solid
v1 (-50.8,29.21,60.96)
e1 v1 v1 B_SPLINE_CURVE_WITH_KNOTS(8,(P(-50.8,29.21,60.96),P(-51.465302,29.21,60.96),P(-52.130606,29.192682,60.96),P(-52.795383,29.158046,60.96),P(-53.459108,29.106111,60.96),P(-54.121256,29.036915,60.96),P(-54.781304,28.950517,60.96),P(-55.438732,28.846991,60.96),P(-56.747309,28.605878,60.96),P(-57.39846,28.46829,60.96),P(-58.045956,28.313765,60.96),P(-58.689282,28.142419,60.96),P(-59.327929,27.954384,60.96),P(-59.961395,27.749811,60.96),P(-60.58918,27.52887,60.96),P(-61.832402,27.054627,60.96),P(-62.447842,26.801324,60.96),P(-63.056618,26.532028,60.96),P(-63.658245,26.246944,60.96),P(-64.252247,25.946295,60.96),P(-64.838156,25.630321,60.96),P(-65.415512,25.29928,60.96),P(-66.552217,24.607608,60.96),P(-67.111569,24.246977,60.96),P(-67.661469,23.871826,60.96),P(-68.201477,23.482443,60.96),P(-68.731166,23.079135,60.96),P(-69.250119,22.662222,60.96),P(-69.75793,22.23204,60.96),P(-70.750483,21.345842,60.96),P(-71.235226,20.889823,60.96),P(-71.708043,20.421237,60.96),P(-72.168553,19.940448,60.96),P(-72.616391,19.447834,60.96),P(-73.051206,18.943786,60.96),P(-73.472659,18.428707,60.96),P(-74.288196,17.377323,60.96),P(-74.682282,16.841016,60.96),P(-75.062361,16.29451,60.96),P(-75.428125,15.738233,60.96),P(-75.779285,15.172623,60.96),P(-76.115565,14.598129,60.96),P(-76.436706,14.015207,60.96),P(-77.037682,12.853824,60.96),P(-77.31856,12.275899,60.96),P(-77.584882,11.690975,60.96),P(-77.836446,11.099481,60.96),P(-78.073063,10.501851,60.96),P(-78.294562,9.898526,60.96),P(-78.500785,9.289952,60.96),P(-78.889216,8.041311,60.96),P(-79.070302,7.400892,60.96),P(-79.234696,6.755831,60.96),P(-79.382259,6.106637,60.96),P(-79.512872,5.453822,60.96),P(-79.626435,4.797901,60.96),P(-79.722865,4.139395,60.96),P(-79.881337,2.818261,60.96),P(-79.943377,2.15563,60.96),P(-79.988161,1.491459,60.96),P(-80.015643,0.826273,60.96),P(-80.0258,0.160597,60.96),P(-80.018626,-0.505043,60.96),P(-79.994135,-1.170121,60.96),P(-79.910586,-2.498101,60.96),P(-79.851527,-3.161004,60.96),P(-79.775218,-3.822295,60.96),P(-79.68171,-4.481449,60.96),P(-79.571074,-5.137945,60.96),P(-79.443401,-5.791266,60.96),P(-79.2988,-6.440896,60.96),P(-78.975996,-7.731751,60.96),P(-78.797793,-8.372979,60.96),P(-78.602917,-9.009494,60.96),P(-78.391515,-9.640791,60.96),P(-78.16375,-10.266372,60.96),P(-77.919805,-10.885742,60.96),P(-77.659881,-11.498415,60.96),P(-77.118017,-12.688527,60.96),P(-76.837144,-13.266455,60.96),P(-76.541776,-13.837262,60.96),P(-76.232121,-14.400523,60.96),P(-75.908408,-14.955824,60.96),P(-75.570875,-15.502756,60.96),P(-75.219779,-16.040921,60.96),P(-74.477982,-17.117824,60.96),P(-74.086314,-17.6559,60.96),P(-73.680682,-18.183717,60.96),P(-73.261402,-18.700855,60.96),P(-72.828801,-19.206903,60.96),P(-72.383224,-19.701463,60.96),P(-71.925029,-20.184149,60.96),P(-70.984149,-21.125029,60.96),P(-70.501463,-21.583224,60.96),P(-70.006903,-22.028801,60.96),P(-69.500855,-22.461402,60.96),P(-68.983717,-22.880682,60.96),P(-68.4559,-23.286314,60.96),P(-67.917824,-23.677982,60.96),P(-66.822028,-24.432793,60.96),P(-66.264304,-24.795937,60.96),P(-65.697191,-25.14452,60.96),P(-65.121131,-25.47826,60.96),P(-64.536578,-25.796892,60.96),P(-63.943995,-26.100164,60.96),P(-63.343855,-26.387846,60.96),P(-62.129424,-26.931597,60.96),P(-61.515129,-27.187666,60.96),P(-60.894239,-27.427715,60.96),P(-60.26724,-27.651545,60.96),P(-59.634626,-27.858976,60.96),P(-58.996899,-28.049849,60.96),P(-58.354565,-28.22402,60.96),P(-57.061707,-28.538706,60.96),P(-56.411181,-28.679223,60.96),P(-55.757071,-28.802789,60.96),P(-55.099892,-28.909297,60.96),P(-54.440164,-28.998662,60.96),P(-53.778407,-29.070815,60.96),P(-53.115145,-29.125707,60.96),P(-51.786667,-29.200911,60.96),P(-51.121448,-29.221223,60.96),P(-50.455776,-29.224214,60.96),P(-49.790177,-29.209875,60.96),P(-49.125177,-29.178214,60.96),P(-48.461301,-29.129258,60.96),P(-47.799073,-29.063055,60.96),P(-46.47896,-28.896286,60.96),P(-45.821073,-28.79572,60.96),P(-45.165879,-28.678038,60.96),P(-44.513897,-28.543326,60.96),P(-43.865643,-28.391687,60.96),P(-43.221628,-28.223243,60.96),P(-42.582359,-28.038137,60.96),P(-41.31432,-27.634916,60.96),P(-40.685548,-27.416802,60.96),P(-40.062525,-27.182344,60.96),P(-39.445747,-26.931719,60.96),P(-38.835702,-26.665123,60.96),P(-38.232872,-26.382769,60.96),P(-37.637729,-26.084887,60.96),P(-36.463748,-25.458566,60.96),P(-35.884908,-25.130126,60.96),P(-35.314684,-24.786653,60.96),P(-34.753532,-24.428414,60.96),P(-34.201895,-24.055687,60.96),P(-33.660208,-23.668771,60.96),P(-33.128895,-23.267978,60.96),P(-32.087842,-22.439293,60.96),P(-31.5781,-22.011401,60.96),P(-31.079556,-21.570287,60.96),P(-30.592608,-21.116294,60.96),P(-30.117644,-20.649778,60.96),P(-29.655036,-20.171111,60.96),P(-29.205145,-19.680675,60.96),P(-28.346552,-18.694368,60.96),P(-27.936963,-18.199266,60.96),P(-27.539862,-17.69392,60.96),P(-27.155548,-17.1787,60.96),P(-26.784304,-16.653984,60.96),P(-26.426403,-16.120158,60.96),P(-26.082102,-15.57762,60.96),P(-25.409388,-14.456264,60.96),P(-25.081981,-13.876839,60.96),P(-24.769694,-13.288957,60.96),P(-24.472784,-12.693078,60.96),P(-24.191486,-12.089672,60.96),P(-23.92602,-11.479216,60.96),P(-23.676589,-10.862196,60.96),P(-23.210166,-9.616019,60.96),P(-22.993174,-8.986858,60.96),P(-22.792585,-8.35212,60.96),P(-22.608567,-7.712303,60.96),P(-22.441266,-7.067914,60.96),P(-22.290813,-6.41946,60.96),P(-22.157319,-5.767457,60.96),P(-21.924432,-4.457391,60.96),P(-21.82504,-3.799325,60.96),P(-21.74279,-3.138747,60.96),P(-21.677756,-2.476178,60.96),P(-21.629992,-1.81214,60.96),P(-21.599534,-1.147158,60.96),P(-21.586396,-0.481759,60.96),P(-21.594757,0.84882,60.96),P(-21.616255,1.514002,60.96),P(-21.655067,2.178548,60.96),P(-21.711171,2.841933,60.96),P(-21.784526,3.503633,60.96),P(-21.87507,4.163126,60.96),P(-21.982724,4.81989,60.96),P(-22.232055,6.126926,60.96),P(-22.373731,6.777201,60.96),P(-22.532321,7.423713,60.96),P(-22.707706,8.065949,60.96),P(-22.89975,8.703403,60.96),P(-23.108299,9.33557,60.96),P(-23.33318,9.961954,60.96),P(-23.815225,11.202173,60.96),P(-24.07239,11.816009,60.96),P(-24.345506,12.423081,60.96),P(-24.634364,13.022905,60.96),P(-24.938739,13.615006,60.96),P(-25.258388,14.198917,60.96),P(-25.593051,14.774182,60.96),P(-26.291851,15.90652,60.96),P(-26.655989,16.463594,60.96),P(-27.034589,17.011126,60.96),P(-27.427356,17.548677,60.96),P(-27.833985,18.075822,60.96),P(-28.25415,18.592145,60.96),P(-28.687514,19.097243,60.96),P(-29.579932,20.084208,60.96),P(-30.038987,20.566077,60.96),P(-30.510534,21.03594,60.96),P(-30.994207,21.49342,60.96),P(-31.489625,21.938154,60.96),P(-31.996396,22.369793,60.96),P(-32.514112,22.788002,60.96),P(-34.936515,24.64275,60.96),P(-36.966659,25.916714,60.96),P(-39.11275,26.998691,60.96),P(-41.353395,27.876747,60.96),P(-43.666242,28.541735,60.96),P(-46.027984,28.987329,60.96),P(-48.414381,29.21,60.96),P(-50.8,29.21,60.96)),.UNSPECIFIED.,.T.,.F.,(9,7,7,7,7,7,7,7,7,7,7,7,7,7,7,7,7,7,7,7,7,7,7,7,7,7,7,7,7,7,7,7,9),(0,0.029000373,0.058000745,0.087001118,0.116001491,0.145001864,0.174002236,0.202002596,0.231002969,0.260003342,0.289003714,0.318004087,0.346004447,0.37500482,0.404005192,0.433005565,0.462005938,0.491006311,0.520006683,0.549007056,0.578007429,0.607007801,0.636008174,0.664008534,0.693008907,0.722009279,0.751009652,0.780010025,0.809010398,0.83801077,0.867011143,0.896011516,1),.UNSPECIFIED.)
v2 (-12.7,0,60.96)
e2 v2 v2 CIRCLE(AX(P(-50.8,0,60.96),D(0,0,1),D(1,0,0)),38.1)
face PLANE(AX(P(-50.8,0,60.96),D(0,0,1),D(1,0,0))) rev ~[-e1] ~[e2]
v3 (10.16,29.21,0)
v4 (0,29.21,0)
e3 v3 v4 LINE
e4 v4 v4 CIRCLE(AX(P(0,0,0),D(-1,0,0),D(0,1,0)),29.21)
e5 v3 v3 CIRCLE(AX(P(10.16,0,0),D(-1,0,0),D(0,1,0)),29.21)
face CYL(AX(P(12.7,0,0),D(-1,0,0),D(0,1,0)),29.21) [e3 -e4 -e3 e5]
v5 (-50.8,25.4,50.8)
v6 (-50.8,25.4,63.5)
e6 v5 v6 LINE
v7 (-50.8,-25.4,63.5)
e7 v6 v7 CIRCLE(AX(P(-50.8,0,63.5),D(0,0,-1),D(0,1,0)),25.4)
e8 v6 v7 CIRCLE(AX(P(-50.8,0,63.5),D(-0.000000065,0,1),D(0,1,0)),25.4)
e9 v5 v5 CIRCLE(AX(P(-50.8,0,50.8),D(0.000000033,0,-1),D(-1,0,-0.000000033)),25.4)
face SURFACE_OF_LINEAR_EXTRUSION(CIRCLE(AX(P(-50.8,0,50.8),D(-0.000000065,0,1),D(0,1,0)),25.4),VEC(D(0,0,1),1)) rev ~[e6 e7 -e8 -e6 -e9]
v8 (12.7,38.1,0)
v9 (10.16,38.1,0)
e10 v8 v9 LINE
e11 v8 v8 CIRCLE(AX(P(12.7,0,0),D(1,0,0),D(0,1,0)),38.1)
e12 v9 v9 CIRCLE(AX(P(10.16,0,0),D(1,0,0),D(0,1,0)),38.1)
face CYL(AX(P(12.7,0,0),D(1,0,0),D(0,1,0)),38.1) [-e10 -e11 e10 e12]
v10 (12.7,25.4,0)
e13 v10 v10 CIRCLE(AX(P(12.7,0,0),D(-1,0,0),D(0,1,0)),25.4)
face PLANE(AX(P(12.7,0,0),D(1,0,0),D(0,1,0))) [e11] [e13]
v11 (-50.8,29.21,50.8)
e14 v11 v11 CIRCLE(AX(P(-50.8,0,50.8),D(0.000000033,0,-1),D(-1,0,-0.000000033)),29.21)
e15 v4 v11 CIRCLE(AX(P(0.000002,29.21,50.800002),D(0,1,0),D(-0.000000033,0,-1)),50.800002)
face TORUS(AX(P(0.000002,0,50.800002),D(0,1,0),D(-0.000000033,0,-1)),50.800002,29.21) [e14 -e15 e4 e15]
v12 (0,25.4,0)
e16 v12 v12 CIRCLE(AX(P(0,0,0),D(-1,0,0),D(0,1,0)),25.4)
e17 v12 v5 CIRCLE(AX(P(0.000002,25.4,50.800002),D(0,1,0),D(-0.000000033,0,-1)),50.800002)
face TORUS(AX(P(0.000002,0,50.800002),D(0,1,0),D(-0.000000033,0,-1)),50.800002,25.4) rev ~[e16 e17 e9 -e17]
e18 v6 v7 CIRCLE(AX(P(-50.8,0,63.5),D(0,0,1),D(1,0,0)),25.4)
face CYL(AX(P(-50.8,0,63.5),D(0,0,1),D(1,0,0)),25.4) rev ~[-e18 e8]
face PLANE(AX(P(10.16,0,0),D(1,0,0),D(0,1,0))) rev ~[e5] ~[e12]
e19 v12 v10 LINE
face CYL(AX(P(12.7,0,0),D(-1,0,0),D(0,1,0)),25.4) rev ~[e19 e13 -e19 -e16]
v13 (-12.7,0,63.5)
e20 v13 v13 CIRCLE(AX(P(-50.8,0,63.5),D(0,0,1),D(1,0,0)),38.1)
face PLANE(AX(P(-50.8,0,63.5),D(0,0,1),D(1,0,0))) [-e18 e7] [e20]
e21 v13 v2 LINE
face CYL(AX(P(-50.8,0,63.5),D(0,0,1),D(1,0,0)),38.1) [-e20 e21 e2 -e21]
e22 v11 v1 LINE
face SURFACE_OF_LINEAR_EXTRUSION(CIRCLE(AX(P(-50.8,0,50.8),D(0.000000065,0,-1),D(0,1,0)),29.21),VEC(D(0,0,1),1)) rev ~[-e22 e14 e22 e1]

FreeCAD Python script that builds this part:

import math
import FreeCAD as App
import Part
import Sketcher

V = App.Vector
Q = App.Units.Quantity

doc = App.newDocument("Part")
body = doc.addObject("PartDesign::Body", "Body")

sketch1 = doc.addObject("Sketcher::SketchObject", "Sketch")
body.addObject(sketch1)
sketch1.AttachmentSupport = (doc.YZ_Plane, [""])
sketch1.MapMode = "FlatFace"
sketch1.AttachmentOffset = App.Placement(V(0, 0, 0.5 * 25.4), App.Rotation())
sketch1.addGeometry([
    Part.Circle(V(0, 0, 0), V(0, 0, 1), 29.21),
    Part.Circle(V(0, 0, 0), V(0, 0, 1), 25.4),
], False)
sketch1.addConstraint([
    Sketcher.Constraint("Coincident", 0, 3, -1, 1),
    Sketcher.Constraint("Coincident", 1, 3, -1, 1),
    Sketcher.Constraint("Diameter", 1, Q("2 in")),
    Sketcher.Constraint("Diameter", 0, Q("2.3 in")),
])

sketch2 = doc.addObject("Sketcher::SketchObject", "Sketch001")
body.addObject(sketch2)
sketch2.AttachmentSupport = (doc.XZ_Plane, [""])
sketch2.MapMode = "FlatFace"
sketch2.addGeometry([
    Part.LineSegment(V(12.7, 0, 0), V(0, 0, 0)),
    Part.ArcOfCircle(Part.Circle(V(0.000002, 50.800002, 0), V(0, 0, 1), 50.800002), math.radians(-179.999998), math.radians(-90.000002)),
    Part.LineSegment(V(-50.8, 50.8, 0), V(-50.8, 63.5, 0)),
], False)
sketch2.addConstraint([
    Sketcher.Constraint("Tangent", 0, 2, 1, 2),
    Sketcher.Constraint("Tangent", 1, 1, 2, 1),
    Sketcher.Constraint("Horizontal", 0),
    Sketcher.Constraint("Vertical", 2),
    Sketcher.Constraint("Coincident", 0, 2, -1, 1),
    Sketcher.Constraint("Equal", 0, 2),
    Sketcher.Constraint("Radius", 1, Q("2.0000001 in")),
    Sketcher.Constraint("DistanceX", 0, 2, 0, 1, Q("0.5 in")),
])
doc.recompute()

additivepipe = doc.addObject("PartDesign::AdditivePipe", "AdditivePipe")
body.addObject(additivepipe)
additivepipe.Profile = sketch1
additivepipe.Spine = (sketch2, ["Edge1", "Edge2", "Edge3"])

sketch3 = doc.addObject("Sketcher::SketchObject", "Sketch002")
body.addObject(sketch3)
sketch3.AttachmentSupport = (doc.YZ_Plane, [""])
sketch3.MapMode = "FlatFace"
sketch3.AttachmentOffset = App.Placement(V(0, 0, 0.5 * 25.4), App.Rotation())
sketch3.addGeometry([
    Part.Circle(V(0, 0, 0), V(0, 0, 1), 38.1),
    Part.Circle(V(0, 0, 0), V(0, 0, 1), 25.4),
], False)
sketch3.addConstraint([
    Sketcher.Constraint("Coincident", 0, 3, -1, 1),
    Sketcher.Constraint("Coincident", 1, 3, -1, 1),
    Sketcher.Constraint("Diameter", 0, Q("3 in")),
    Sketcher.Constraint("Diameter", 1, Q("2 in")),
])
pad1 = doc.addObject("PartDesign::Pad", "Pad")
body.addObject(pad1)
pad1.Profile = sketch3
pad1.Length = Q("0.1 in")
pad1.Reversed = True

sketch4 = doc.addObject("Sketcher::SketchObject", "Sketch003")
body.addObject(sketch4)
sketch4.AttachmentSupport = (doc.XY_Plane, [""])
sketch4.MapMode = "FlatFace"
sketch4.AttachmentOffset = App.Placement(V(0, 0, 2.5 * 25.4), App.Rotation())
sketch4.addGeometry([
    Part.Circle(V(-50.8, 0, 0), V(0, 0, 1), 38.1),
    Part.Circle(V(-50.8, 0, 0), V(0, 0, 1), 25.4),
], False)
sketch4.addConstraint([
    Sketcher.Constraint("Coincident", 1, 3, 0, 3),
    Sketcher.Constraint("PointOnObject", 0, 3, -1),
    Sketcher.Constraint("Diameter", 0, Q("3 in")),
    Sketcher.Constraint("Diameter", 1, Q("2 in")),
    Sketcher.Constraint("DistanceX", 0, 3, -1, 1, Q("2 in")),
])
pad2 = doc.addObject("PartDesign::Pad", "Pad001")
body.addObject(pad2)
pad2.Profile = sketch4
pad2.Length = Q("0.1 in")
pad2.Reversed = True

doc.recompute()
